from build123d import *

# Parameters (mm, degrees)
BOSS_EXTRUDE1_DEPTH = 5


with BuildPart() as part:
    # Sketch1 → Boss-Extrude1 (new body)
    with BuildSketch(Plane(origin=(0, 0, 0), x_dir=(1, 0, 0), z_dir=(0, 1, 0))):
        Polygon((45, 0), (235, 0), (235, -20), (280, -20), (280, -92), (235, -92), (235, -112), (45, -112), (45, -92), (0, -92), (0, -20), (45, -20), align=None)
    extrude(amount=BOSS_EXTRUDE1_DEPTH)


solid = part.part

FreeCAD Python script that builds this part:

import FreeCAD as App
import Part
import Sketcher

V = App.Vector

doc = App.newDocument("Part")
params = doc.addObject("Spreadsheet::Sheet", "Params")
for row, (alias, value) in enumerate([
    ("sketch1_width", "190 mm"),
    ("sketch1_width2", "45 mm"),
    ("sketch1_height", "20 mm"),
    ("sketch1_height2", "72 mm"),
    ("pad1_length", "5 mm"),
], start=1):
    params.set(f"A{row}", alias)
    params.set(f"B{row}", "=" + value)
    params.setAlias(f"B{row}", alias)

body = doc.addObject("PartDesign::Body", "Body")

sketch1 = doc.addObject("Sketcher::SketchObject", "Sketch")
body.addObject(sketch1)
sketch1.AttachmentSupport = (doc.XZ_Plane, [""])
sketch1.MapMode = "FlatFace"
sketch1.addGeometry(Part.LineSegment(V(235, 0, 0), V(45, 0, 0)), False)
sketch1.addGeometry(Part.LineSegment(V(45, 0, 0), V(45, 20, 0)), False)
sketch1.addGeometry(Part.LineSegment(V(45, 20, 0), V(0, 20, 0)), False)
sketch1.addGeometry(Part.LineSegment(V(0, 20, 0), V(0, 92, 0)), False)
sketch1.addGeometry(Part.LineSegment(V(0, 92, 0), V(45, 92, 0)), False)
sketch1.addGeometry(Part.LineSegment(V(45, 92, 0), V(45, 112, 0)), False)
sketch1.addGeometry(Part.LineSegment(V(45, 112, 0), V(235, 112, 0)), False)
sketch1.addGeometry(Part.LineSegment(V(235, 112, 0), V(235, 92, 0)), False)
sketch1.addGeometry(Part.LineSegment(V(235, 92, 0), V(280, 92, 0)), False)
sketch1.addGeometry(Part.LineSegment(V(280, 92, 0), V(280, 20, 0)), False)
sketch1.addGeometry(Part.LineSegment(V(280, 20, 0), V(235, 20, 0)), False)
sketch1.addGeometry(Part.LineSegment(V(235, 20, 0), V(235, 0, 0)), False)
sketch1.addConstraint(Sketcher.Constraint("Coincident", 0, 2, 1, 1))
sketch1.addConstraint(Sketcher.Constraint("Coincident", 1, 2, 2, 1))
sketch1.addConstraint(Sketcher.Constraint("Coincident", 2, 2, 3, 1))
sketch1.addConstraint(Sketcher.Constraint("Coincident", 3, 2, 4, 1))
sketch1.addConstraint(Sketcher.Constraint("Coincident", 4, 2, 5, 1))
sketch1.addConstraint(Sketcher.Constraint("Coincident", 5, 2, 6, 1))
sketch1.addConstraint(Sketcher.Constraint("Coincident", 6, 2, 7, 1))
sketch1.addConstraint(Sketcher.Constraint("Coincident", 7, 2, 8, 1))
sketch1.addConstraint(Sketcher.Constraint("Coincident", 8, 2, 9, 1))
sketch1.addConstraint(Sketcher.Constraint("Coincident", 9, 2, 10, 1))
sketch1.addConstraint(Sketcher.Constraint("Coincident", 10, 2, 11, 1))
sketch1.addConstraint(Sketcher.Constraint("Coincident", 11, 2, 0, 1))
sketch1.addConstraint(Sketcher.Constraint("Horizontal", 0))
sketch1.addConstraint(Sketcher.Constraint("Vertical", 1))
sketch1.addConstraint(Sketcher.Constraint("Horizontal", 2))
sketch1.addConstraint(Sketcher.Constraint("Vertical", 3))
sketch1.addConstraint(Sketcher.Constraint("Horizontal", 4))
sketch1.addConstraint(Sketcher.Constraint("Vertical", 5))
sketch1.addConstraint(Sketcher.Constraint("Horizontal", 6))
sketch1.addConstraint(Sketcher.Constraint("Vertical", 7))
sketch1.addConstraint(Sketcher.Constraint("Horizontal", 8))
sketch1.addConstraint(Sketcher.Constraint("Vertical", 9))
sketch1.addConstraint(Sketcher.Constraint("Horizontal", 10))
sketch1.addConstraint(Sketcher.Constraint("Vertical", 11))
sketch1.addConstraint(Sketcher.Constraint("PointOnObject", 0, 2, -1))
sketch1.addConstraint(Sketcher.Constraint("PointOnObject", 2, 2, -2))
sketch1.addConstraint(Sketcher.Constraint("Horizontal", 4, 2, 7, 2))
sketch1.addConstraint(Sketcher.Constraint("Horizontal", 2, 2, 9, 2))
sketch1.addConstraint(Sketcher.Constraint("Vertical", 1, 2, 4, 2))
sketch1.addConstraint(Sketcher.Constraint("Vertical", 7, 2, 10, 2))
sketch1.addConstraint(Sketcher.Constraint("Equal", 4, 8))
sketch1.addConstraint(Sketcher.Constraint("Equal", 1, 5))
sketch1.addConstraint(Sketcher.Constraint("DistanceX", 0, 2, 0, 1, 190.0))
sketch1.addConstraint(Sketcher.Constraint("DistanceX", 2, 2, 2, 1, 45.0))
sketch1.addConstraint(Sketcher.Constraint("DistanceY", 1, 1, 1, 2, 20.0))
sketch1.addConstraint(Sketcher.Constraint("DistanceY", 3, 1, 3, 2, 72.0))
sketch1.setExpression("Constraints[32]", "Params.sketch1_width")
sketch1.setExpression("Constraints[33]", "Params.sketch1_width2")
sketch1.setExpression("Constraints[34]", "Params.sketch1_height")
sketch1.setExpression("Constraints[35]", "Params.sketch1_height2")
pad1 = doc.addObject("PartDesign::Pad", "Pad")
body.addObject(pad1)
pad1.Profile = sketch1
pad1.setExpression("Length", "Params.pad1_length")
pad1.Reversed = True

doc.recompute()
